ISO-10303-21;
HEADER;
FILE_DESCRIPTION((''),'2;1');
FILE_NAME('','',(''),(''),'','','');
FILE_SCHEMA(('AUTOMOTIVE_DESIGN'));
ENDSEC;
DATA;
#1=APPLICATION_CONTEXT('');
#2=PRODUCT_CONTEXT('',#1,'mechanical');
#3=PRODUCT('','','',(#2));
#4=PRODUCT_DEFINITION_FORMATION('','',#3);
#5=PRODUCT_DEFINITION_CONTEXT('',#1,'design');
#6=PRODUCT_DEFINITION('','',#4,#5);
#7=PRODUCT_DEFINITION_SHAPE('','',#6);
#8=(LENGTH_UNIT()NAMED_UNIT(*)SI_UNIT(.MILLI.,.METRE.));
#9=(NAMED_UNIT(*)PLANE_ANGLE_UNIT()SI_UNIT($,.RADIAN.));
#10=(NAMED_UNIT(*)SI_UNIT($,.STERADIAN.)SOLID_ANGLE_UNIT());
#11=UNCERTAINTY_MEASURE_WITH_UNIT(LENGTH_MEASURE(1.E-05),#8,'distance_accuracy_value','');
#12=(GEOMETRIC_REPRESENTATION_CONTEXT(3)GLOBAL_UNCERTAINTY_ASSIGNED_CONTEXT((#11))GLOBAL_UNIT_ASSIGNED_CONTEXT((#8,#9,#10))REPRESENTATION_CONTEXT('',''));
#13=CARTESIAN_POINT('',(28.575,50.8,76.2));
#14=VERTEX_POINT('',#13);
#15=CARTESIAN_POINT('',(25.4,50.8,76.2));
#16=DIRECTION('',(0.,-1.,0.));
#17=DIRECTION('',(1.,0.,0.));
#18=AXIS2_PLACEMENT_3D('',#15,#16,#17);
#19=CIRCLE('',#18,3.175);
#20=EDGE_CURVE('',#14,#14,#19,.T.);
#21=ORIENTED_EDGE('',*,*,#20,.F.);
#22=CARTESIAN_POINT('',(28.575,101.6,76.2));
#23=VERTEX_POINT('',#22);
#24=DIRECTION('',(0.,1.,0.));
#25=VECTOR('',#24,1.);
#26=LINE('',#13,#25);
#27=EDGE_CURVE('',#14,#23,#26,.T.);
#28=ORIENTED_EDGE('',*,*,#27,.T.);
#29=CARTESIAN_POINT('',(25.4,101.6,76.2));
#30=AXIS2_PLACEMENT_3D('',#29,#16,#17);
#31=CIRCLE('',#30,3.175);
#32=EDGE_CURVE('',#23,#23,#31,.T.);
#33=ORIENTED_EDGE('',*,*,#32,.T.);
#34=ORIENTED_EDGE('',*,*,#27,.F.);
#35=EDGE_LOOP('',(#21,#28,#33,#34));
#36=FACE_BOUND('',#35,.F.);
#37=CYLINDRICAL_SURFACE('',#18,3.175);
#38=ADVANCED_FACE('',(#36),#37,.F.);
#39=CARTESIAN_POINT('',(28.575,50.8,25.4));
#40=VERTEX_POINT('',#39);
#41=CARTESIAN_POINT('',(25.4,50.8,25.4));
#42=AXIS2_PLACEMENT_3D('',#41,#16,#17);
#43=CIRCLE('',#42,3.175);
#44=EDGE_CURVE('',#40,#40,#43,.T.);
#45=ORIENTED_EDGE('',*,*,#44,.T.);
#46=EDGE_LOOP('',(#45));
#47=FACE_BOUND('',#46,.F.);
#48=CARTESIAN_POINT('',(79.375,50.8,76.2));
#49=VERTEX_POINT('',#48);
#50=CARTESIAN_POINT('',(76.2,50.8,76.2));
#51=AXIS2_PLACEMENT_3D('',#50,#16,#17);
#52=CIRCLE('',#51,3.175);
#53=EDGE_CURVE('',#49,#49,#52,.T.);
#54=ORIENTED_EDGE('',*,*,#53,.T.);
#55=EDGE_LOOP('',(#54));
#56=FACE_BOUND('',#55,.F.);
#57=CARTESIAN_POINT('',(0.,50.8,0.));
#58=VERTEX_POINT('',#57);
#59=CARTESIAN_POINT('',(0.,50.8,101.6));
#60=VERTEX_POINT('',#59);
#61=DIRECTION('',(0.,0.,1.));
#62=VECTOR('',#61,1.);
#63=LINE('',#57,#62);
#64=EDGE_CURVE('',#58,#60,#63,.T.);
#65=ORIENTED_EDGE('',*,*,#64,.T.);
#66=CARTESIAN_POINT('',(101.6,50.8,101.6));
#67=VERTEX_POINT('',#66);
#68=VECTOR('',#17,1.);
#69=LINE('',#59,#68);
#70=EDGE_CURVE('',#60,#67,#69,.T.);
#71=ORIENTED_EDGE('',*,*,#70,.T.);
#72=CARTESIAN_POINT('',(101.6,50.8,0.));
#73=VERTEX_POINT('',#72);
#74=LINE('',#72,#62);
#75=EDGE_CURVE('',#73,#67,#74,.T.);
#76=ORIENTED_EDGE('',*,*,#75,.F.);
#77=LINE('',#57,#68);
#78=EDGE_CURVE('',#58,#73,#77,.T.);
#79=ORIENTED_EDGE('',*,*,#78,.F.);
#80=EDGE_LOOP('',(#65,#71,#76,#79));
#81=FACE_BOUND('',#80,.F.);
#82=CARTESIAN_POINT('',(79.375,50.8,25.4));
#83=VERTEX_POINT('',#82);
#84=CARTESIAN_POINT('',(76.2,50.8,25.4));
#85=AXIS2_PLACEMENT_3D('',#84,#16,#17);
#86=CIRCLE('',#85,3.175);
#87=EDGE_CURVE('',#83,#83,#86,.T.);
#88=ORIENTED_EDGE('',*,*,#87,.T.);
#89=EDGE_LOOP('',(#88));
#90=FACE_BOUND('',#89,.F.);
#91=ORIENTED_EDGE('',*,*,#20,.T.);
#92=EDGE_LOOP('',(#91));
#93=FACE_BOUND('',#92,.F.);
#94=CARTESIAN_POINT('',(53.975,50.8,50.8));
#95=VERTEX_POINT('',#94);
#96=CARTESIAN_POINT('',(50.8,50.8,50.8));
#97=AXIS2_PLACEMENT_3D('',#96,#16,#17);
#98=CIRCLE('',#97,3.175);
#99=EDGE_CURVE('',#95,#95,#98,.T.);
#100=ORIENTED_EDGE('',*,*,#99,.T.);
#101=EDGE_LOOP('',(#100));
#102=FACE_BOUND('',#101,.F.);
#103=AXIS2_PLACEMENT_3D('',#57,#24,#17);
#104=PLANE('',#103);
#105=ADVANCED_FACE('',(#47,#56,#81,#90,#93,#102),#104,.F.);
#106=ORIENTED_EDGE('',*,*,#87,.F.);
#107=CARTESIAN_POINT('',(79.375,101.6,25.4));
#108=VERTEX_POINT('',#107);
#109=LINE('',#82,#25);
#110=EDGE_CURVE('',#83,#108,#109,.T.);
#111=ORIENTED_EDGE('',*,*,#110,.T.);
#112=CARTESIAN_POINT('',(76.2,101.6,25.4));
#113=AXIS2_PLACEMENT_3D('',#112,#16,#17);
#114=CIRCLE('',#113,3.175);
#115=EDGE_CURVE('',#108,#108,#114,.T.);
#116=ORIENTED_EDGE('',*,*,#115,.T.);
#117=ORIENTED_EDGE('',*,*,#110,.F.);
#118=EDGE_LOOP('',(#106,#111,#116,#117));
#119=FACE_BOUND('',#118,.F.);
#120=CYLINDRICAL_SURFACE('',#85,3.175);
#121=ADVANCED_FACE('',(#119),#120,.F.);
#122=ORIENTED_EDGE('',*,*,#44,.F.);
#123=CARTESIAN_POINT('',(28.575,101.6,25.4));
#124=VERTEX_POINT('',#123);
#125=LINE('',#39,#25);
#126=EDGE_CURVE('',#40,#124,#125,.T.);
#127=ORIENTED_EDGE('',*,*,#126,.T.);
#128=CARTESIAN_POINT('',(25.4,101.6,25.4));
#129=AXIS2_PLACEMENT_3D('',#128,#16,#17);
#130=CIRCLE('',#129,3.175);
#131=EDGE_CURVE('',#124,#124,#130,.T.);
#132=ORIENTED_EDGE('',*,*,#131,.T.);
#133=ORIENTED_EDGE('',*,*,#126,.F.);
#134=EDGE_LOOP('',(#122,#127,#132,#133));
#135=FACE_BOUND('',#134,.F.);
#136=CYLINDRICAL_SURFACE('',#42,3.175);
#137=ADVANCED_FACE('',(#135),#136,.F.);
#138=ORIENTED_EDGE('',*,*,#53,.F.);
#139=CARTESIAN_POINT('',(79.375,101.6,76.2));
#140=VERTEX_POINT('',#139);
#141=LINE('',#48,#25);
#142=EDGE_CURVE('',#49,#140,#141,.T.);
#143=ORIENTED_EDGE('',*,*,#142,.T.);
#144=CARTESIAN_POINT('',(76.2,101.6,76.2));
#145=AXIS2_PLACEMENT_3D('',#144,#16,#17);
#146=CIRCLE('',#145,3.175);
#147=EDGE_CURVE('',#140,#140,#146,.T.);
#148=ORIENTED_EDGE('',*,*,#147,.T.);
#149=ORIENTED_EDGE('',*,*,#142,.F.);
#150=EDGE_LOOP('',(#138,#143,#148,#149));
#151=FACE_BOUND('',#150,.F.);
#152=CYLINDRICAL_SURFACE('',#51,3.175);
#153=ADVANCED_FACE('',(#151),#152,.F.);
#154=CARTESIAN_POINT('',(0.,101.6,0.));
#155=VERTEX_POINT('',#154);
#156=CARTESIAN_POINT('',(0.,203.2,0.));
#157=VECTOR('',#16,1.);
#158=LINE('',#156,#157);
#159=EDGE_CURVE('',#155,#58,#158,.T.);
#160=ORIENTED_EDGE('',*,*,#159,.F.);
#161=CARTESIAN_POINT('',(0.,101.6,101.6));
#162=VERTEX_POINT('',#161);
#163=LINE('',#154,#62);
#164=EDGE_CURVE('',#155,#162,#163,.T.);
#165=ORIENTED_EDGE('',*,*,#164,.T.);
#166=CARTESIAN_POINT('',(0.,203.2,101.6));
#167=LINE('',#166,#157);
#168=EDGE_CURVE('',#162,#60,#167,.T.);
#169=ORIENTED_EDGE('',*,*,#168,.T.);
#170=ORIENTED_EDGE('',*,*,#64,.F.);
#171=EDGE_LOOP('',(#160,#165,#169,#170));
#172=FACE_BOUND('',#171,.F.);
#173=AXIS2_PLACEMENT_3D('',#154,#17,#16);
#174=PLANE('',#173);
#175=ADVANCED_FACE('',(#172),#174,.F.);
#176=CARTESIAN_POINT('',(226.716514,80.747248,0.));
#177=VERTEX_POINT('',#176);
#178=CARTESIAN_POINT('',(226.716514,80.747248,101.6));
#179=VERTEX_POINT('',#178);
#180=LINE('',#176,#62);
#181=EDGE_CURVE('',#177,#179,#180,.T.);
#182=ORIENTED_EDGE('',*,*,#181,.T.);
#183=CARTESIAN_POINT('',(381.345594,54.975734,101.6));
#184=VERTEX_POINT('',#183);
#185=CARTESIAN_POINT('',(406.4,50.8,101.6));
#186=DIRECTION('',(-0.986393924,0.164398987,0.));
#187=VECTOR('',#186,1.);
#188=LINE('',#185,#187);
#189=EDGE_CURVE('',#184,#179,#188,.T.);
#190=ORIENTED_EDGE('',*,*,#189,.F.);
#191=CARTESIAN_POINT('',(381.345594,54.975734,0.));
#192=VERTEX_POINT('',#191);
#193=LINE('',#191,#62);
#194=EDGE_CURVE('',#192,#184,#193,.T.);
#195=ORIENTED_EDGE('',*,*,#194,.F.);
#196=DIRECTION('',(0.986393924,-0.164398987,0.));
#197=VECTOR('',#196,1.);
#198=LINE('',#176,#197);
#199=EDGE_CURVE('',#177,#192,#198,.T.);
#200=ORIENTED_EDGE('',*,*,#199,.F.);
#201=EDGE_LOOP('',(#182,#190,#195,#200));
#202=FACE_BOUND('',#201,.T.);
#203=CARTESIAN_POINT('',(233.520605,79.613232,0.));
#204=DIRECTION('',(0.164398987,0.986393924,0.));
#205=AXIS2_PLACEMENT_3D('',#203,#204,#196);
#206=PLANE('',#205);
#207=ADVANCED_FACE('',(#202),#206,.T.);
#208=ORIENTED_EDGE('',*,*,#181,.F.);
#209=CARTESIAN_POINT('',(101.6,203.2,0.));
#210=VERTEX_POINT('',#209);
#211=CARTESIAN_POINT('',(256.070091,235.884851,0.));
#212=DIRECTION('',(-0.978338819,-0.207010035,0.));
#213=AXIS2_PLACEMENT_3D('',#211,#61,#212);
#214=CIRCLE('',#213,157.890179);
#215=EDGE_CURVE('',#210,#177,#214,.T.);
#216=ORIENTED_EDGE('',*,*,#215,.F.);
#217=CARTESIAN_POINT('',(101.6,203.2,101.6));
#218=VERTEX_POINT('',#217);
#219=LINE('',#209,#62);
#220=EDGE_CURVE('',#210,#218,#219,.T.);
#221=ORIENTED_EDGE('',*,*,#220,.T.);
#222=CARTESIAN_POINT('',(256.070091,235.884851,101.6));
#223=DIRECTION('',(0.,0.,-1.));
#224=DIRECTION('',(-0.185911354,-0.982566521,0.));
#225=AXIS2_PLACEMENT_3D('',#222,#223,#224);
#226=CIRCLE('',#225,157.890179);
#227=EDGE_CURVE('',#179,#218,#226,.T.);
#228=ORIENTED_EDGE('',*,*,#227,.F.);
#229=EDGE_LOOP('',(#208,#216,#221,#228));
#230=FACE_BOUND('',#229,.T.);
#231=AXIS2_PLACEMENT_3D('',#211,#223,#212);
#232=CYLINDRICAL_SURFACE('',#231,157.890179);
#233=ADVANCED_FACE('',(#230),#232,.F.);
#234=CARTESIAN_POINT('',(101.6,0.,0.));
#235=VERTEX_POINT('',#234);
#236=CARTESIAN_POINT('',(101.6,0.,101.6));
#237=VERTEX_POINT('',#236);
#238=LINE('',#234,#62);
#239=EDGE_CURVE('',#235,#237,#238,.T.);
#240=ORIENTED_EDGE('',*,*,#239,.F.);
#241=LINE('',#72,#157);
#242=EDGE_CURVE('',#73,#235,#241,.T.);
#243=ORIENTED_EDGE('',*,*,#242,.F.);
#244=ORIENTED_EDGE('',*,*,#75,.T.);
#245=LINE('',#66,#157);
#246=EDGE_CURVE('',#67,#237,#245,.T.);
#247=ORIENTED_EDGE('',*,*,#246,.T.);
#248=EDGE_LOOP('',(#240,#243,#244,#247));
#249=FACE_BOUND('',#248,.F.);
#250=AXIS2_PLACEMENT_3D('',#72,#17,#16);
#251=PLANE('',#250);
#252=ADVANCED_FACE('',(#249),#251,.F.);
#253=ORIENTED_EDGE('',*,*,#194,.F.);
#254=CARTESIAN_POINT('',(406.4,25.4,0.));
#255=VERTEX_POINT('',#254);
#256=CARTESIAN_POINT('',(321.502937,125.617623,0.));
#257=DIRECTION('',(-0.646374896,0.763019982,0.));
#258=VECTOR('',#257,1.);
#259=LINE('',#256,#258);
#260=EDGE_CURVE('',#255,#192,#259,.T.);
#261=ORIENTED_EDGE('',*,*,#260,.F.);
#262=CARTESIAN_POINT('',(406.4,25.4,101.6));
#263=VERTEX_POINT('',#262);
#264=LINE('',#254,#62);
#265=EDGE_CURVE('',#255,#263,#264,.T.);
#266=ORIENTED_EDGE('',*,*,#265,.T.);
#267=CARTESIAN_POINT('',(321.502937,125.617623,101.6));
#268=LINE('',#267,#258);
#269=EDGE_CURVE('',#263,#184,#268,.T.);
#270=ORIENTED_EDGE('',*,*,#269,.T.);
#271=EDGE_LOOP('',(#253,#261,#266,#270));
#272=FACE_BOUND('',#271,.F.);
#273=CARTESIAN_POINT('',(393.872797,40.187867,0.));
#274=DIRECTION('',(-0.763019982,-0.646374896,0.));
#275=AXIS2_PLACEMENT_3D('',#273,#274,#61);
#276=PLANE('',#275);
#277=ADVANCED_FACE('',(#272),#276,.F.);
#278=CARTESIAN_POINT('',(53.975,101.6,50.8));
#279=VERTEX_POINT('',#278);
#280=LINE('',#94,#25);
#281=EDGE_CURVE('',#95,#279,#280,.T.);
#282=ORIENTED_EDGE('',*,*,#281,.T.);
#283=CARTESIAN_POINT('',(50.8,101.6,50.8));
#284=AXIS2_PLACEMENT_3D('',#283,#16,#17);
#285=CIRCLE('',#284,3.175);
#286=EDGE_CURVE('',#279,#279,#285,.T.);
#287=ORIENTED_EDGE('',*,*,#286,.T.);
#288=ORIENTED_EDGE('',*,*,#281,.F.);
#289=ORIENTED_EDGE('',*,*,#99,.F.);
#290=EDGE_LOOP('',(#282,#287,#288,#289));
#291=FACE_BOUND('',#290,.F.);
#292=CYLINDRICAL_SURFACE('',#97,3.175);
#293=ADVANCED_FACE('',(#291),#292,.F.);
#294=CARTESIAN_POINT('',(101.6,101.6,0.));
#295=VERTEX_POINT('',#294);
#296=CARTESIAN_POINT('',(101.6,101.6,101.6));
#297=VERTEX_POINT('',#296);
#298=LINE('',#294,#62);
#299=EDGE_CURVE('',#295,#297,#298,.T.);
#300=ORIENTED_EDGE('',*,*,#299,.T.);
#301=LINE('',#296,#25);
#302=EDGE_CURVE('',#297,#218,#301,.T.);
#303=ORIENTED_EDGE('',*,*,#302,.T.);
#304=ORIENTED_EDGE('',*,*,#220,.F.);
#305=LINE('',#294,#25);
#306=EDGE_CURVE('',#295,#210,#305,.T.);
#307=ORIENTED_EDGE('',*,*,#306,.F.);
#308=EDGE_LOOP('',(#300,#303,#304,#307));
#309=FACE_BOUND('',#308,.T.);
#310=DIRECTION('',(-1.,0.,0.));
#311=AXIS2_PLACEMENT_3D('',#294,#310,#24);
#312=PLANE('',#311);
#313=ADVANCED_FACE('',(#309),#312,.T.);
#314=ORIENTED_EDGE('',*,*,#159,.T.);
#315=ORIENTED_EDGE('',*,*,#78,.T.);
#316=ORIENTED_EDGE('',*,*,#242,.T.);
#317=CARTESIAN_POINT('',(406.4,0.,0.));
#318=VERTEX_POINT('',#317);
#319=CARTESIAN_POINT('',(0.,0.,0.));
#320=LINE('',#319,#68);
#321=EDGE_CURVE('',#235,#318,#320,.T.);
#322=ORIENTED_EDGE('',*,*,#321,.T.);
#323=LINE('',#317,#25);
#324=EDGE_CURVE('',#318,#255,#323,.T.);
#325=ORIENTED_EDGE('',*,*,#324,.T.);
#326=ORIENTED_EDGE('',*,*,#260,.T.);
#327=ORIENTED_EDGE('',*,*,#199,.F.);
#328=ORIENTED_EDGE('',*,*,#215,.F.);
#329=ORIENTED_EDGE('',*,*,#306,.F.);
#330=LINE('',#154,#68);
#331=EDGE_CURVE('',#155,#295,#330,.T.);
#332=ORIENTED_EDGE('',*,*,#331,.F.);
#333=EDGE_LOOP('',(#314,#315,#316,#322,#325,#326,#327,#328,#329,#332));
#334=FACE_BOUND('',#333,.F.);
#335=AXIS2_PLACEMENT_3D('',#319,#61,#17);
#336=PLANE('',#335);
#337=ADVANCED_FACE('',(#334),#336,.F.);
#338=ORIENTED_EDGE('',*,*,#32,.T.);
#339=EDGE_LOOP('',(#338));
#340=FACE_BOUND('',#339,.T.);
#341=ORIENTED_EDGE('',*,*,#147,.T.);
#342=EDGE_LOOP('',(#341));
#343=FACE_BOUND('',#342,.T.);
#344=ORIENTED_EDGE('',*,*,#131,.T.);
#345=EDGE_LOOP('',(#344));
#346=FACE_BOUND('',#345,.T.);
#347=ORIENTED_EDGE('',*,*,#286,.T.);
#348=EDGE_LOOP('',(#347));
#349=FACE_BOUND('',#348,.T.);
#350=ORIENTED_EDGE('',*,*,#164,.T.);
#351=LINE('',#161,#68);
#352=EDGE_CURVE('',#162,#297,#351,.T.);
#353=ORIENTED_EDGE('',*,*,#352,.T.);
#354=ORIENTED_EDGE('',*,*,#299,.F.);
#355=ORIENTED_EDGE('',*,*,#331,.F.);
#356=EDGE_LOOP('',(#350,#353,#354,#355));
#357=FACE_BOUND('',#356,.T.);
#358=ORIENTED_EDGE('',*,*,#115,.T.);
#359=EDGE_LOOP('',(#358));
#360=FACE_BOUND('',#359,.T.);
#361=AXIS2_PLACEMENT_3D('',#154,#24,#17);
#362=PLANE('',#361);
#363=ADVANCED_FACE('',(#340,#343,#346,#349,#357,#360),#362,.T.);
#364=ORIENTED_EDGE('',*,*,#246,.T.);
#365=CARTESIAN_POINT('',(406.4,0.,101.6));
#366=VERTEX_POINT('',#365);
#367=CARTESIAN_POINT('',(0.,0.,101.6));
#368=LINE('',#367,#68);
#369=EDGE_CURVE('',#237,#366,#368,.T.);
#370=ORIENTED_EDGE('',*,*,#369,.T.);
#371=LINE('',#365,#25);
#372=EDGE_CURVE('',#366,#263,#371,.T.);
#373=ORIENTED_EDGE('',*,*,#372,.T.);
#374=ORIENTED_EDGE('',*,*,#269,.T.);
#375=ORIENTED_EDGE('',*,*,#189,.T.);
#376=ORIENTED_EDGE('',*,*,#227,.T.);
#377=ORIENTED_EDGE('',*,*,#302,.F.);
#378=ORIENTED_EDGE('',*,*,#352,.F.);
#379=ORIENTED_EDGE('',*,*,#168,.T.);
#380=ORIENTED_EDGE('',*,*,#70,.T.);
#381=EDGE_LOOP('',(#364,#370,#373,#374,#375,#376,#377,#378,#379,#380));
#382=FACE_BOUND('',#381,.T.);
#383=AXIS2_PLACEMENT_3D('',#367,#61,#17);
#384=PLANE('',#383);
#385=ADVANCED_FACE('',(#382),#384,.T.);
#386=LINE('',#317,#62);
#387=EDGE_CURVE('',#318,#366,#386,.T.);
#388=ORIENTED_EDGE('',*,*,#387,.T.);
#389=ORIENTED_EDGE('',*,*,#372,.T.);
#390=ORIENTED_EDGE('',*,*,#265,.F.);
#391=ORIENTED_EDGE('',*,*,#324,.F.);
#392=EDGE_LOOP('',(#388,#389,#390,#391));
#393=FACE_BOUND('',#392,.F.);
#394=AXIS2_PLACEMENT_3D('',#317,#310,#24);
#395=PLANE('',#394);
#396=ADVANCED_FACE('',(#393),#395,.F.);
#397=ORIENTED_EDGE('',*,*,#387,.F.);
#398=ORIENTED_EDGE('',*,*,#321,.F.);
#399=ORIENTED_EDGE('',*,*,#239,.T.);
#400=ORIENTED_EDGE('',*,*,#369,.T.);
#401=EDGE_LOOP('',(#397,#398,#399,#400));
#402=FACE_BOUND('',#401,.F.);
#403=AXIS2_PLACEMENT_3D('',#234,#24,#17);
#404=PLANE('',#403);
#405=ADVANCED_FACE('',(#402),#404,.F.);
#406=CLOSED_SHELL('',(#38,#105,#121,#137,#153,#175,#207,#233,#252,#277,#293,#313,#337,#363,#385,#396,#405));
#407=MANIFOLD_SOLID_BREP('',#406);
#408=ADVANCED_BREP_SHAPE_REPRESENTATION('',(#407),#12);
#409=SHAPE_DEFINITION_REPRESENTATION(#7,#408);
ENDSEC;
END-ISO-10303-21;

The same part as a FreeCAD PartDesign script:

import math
import FreeCAD as App
import Part
import Sketcher
from FreeCAD import Vector
Q = App.Units.Quantity


def edges_at(feature, points):
    """Names of the edges that pass closest to the given points."""
    edges = feature.Shape.Edges
    near = lambda p: min(range(len(edges)), key=lambda i: edges[i].distToShape(Part.Vertex(*p))[0])
    return sorted({f"Edge{near(p) + 1}" for p in points})

doc = App.newDocument("Part")
body = doc.addObject("PartDesign::Body", "Body")

# Sketch on XY plane
sketch1 = body.newObject("Sketcher::SketchObject", "Sketch")
sketch1.AttachmentSupport = (doc.getObject("XY_Plane"), [""])
sketch1.MapMode = "FlatFace"
sketch1.addGeometry(Part.LineSegment(Vector(102, 51, 0), Vector(102, 0, 0)), False)
sketch1.addGeometry(Part.LineSegment(Vector(102, 0, 0), Vector(406, 0, 0)), False)
sketch1.addGeometry(Part.LineSegment(Vector(406, 0, 0), Vector(406, 51, 0)), False)
sketch1.addGeometry(Part.LineSegment(Vector(406, 51, 0), Vector(227, 81, 0)), False)
sketch1.addGeometry(Part.ArcOfCircle(Part.Circle(Vector(256, 236, 0), Vector(0, 0, 1), 158), math.radians(-168), math.radians(-101)), False)
sketch1.addGeometry(Part.LineSegment(Vector(102, 203, 0), Vector(102, 102, 0)), False)
sketch1.addGeometry(Part.LineSegment(Vector(102, 102, 0), Vector(0, 102, 0)), False)
sketch1.addGeometry(Part.LineSegment(Vector(0, 102, 0), Vector(0, 51, 0)), False)
sketch1.addGeometry(Part.LineSegment(Vector(0, 51, 0), Vector(102, 51, 0)), False)
sketch1.addConstraint(Sketcher.Constraint("Coincident", 0, 2, 1, 1))
sketch1.addConstraint(Sketcher.Constraint("Coincident", 1, 2, 2, 1))
sketch1.addConstraint(Sketcher.Constraint("Coincident", 2, 2, 3, 1))
sketch1.addConstraint(Sketcher.Constraint("Coincident", 3, 2, 4, 2))
sketch1.addConstraint(Sketcher.Constraint("Coincident", 4, 1, 5, 1))
sketch1.addConstraint(Sketcher.Constraint("Coincident", 5, 2, 6, 1))
sketch1.addConstraint(Sketcher.Constraint("Coincident", 6, 2, 7, 1))
sketch1.addConstraint(Sketcher.Constraint("Coincident", 7, 2, 8, 1))
sketch1.addConstraint(Sketcher.Constraint("Coincident", 8, 2, 0, 1))
sketch1.addConstraint(Sketcher.Constraint("Vertical", 0))
sketch1.addConstraint(Sketcher.Constraint("Horizontal", 1))
sketch1.addConstraint(Sketcher.Constraint("Vertical", 2))
sketch1.addConstraint(Sketcher.Constraint("Vertical", 5))
sketch1.addConstraint(Sketcher.Constraint("Horizontal", 6))
sketch1.addConstraint(Sketcher.Constraint("Vertical", 7))
sketch1.addConstraint(Sketcher.Constraint("Horizontal", 8))
sketch1.addConstraint(Sketcher.Constraint("PointOnObject", 0, 2, -1))
sketch1.addConstraint(Sketcher.Constraint("PointOnObject", 6, 2, -2))
sketch1.addConstraint(Sketcher.Constraint("Horizontal", 2, 2, 7, 2))
sketch1.addConstraint(Sketcher.Constraint("Vertical", 0, 2, 4, 1))
sketch1.addConstraint(Sketcher.Constraint("Equal", 8, 5))
sketch1.addConstraint(Sketcher.Constraint("Equal", 2, 7))
sketch1.addConstraint(Sketcher.Constraint("DistanceX", 6, 2, 6, 1, Q("4 in")))
sketch1.addConstraint(Sketcher.Constraint("DistanceY", 0, 2, 0, 1, Q("2 in")))
sketch1.addConstraint(Sketcher.Constraint("DistanceX", -1, 1, 1, 2, Q("16 in")))
sketch1.addConstraint(Sketcher.Constraint("Radius", 4, Q("157.89 mm")))
sketch1.addConstraint(Sketcher.Constraint("DistanceX", -1, 1, 4, 3, Q("10.0815 in")))
sketch1.addConstraint(Sketcher.Constraint("Distance", 3, Q("182.162 mm")))
pad1 = body.newObject("PartDesign::Pad", "Pad")
pad1.Profile = sketch1
pad1.Length = Q("4 in")
doc.recompute()

chamfer = body.newObject("PartDesign::Chamfer", "Chamfer")
chamfer.Base = (pad1, edges_at(pad1, [(406.4, 50.8, 50.8)]))
chamfer.Size = Q("1 in")

# Sketch on XZ plane
sketch2 = body.newObject("Sketcher::SketchObject", "Sketch001")
sketch2.AttachmentSupport = (doc.getObject("XZ_Plane"), [""])
sketch2.MapMode = "FlatFace"
sketch2.AttachmentOffset = App.Placement(Vector(0, 0, -2 * 25.4), App.Rotation())
sketch2.addGeometry(Part.Circle(Vector(25.4, 76.2, 0), Vector(0, 0, 1), 3.2), False)
sketch2.addGeometry(Part.Circle(Vector(76.2, 76.2, 0), Vector(0, 0, 1), 3.2), False)
sketch2.addGeometry(Part.Circle(Vector(76.2, 25.4, 0), Vector(0, 0, 1), 3.2), False)
sketch2.addGeometry(Part.Circle(Vector(50.8, 50.8, 0), Vector(0, 0, 1), 3.2), False)
sketch2.addGeometry(Part.Circle(Vector(25.4, 25.4, 0), Vector(0, 0, 1), 3.2), False)
sketch2.addConstraint(Sketcher.Constraint("Equal", 0, 1))
sketch2.addConstraint(Sketcher.Constraint("Equal", 1, 2))
sketch2.addConstraint(Sketcher.Constraint("Equal", 2, 3))
sketch2.addConstraint(Sketcher.Constraint("Equal", 3, 4))
sketch2.addConstraint(Sketcher.Constraint("Horizontal", 0, 3, 1, 3))
sketch2.addConstraint(Sketcher.Constraint("Horizontal", 2, 3, 4, 3))
sketch2.addConstraint(Sketcher.Constraint("Vertical", 1, 3, 2, 3))
sketch2.addConstraint(Sketcher.Constraint("Vertical", 0, 3, 4, 3))
sketch2.addConstraint(Sketcher.Constraint("Diameter", 0, Q("0.25 in")))
sketch2.addConstraint(Sketcher.Constraint("DistanceX", -1, 1, 0, 3, Q("1 in")))
sketch2.addConstraint(Sketcher.Constraint("DistanceY", -1, 1, 2, 3, Q("1 in")))
sketch2.addConstraint(Sketcher.Constraint("DistanceX", -1, 1, 3, 3, Q("2 in")))
sketch2.addConstraint(Sketcher.Constraint("DistanceY", -1, 1, 3, 3, Q("2 in")))
sketch2.addConstraint(Sketcher.Constraint("DistanceX", 0, 3, 1, 3, Q("2 in")))
sketch2.addConstraint(Sketcher.Constraint("DistanceY", 2, 3, 1, 3, Q("2 in")))
pocket1 = body.newObject("PartDesign::Pocket", "Pocket")
pocket1.Profile = sketch2
pocket1.Length = Q("4 in")

doc.recompute()
